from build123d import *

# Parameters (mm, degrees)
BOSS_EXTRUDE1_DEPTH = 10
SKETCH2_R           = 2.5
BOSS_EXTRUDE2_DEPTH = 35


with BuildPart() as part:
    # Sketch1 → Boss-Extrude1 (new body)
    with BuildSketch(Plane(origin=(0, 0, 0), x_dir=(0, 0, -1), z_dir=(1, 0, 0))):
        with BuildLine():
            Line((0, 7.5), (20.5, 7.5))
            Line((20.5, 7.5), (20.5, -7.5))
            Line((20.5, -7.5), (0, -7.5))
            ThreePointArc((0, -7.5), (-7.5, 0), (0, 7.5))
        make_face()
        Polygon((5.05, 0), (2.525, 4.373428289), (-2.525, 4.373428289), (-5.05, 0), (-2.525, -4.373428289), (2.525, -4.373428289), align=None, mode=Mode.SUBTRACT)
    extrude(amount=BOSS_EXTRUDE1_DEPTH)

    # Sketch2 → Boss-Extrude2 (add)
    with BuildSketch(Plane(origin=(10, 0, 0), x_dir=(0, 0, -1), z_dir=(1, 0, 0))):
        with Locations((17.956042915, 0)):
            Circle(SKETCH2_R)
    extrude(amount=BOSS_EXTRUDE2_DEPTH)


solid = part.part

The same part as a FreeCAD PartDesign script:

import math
import FreeCAD as App
import Part
import Sketcher
from FreeCAD import Vector
Q = App.Units.Quantity

doc = App.newDocument("Part")
body = doc.addObject("PartDesign::Body", "Body")

# Sketch on YZ plane
sketch1 = body.newObject("Sketcher::SketchObject", "Sketch")
sketch1.AttachmentSupport = (doc.getObject("YZ_Plane"), [""])
sketch1.MapMode = "FlatFace"
sketch1.addGeometry([
    Part.LineSegment(Vector(8, -20, 0), Vector(8, 0, 0)),  # 0
    Part.ArcOfCircle(Part.Circle(Vector(0, 0, 0), Vector(0, 0, 1), 8), math.radians(0), math.radians(180)),  # 1
    Part.LineSegment(Vector(-8, 0, 0), Vector(-8, -20, 0)),  # 2
    Part.LineSegment(Vector(-8, -20, 0), Vector(8, -20, 0)),  # 3
    Part.LineSegment(Vector(0, -5, 0), Vector(-4, -3, 0)),  # 4
    Part.LineSegment(Vector(-4, -3, 0), Vector(-4, 3, 0)),  # 5
    Part.LineSegment(Vector(-4, 3, 0), Vector(0, 5, 0)),  # 6
    Part.LineSegment(Vector(0, 5, 0), Vector(4, 3, 0)),  # 7
    Part.LineSegment(Vector(4, 3, 0), Vector(4, -3, 0)),  # 8
    Part.LineSegment(Vector(4, -3, 0), Vector(0, -5, 0)),  # 9
], False)
sketch1.addConstraint([
    Sketcher.Constraint("Tangent", 0, 2, 1, 1),
    Sketcher.Constraint("Tangent", 1, 2, 2, 1),
    Sketcher.Constraint("Coincident", 2, 2, 3, 1),
    Sketcher.Constraint("Coincident", 3, 2, 0, 1),
    Sketcher.Constraint("Coincident", 4, 2, 5, 1),
    Sketcher.Constraint("Coincident", 5, 2, 6, 1),
    Sketcher.Constraint("Coincident", 6, 2, 7, 1),
    Sketcher.Constraint("Coincident", 7, 2, 8, 1),
    Sketcher.Constraint("Coincident", 8, 2, 9, 1),
    Sketcher.Constraint("Coincident", 9, 2, 4, 1),
    Sketcher.Constraint("Vertical", 0),
    Sketcher.Constraint("Vertical", 2),
    Sketcher.Constraint("Horizontal", 3),
    Sketcher.Constraint("Vertical", 5),
    Sketcher.Constraint("Vertical", 8),
    Sketcher.Constraint("Coincident", 1, 3, -1, 1),
    Sketcher.Constraint("Symmetric", 4, 2, 7, 2, -1, 1),
    Sketcher.Constraint("Symmetric", 6, 2, 9, 2, -1, 1),
    Sketcher.Constraint("PointOnObject", 6, 2, -2),
    Sketcher.Constraint("Parallel", 6, 9),
    Sketcher.Constraint("Horizontal", 5, 2, 7, 2),
    Sketcher.Constraint("Radius", 1, 7.5),
    Sketcher.Constraint("Angle", 4, Q("150 deg")),
    Sketcher.Constraint("DistanceY", 0, 1, 0, 2, 20.5),
    Sketcher.Constraint("DistanceY", 5, 1, 5, 2, 5.05),
    Sketcher.Constraint("Distance", 4, 5.05),
])
pad1 = body.newObject("PartDesign::Pad", "Pad")
pad1.Profile = sketch1
pad1.Length = 10

# Sketch on YZ plane
sketch2 = body.newObject("Sketcher::SketchObject", "Sketch001")
sketch2.AttachmentSupport = (doc.getObject("YZ_Plane"), [""])
sketch2.MapMode = "FlatFace"
sketch2.AttachmentOffset = App.Placement(Vector(0, 0, 10), App.Rotation())
sketch2.addGeometry(Part.Circle(Vector(0, -18, 0), Vector(0, 0, 1), 2.5), False)
sketch2.addConstraint([
    Sketcher.Constraint("PointOnObject", 0, 3, -2),
    Sketcher.Constraint("Diameter", 0, 5.0),
    Sketcher.Constraint("DistanceY", 0, 3, -1, 1, 17.956043),
])
pad2 = body.newObject("PartDesign::Pad", "Pad001")
pad2.Profile = sketch2
pad2.Length = 35

doc.recompute()
